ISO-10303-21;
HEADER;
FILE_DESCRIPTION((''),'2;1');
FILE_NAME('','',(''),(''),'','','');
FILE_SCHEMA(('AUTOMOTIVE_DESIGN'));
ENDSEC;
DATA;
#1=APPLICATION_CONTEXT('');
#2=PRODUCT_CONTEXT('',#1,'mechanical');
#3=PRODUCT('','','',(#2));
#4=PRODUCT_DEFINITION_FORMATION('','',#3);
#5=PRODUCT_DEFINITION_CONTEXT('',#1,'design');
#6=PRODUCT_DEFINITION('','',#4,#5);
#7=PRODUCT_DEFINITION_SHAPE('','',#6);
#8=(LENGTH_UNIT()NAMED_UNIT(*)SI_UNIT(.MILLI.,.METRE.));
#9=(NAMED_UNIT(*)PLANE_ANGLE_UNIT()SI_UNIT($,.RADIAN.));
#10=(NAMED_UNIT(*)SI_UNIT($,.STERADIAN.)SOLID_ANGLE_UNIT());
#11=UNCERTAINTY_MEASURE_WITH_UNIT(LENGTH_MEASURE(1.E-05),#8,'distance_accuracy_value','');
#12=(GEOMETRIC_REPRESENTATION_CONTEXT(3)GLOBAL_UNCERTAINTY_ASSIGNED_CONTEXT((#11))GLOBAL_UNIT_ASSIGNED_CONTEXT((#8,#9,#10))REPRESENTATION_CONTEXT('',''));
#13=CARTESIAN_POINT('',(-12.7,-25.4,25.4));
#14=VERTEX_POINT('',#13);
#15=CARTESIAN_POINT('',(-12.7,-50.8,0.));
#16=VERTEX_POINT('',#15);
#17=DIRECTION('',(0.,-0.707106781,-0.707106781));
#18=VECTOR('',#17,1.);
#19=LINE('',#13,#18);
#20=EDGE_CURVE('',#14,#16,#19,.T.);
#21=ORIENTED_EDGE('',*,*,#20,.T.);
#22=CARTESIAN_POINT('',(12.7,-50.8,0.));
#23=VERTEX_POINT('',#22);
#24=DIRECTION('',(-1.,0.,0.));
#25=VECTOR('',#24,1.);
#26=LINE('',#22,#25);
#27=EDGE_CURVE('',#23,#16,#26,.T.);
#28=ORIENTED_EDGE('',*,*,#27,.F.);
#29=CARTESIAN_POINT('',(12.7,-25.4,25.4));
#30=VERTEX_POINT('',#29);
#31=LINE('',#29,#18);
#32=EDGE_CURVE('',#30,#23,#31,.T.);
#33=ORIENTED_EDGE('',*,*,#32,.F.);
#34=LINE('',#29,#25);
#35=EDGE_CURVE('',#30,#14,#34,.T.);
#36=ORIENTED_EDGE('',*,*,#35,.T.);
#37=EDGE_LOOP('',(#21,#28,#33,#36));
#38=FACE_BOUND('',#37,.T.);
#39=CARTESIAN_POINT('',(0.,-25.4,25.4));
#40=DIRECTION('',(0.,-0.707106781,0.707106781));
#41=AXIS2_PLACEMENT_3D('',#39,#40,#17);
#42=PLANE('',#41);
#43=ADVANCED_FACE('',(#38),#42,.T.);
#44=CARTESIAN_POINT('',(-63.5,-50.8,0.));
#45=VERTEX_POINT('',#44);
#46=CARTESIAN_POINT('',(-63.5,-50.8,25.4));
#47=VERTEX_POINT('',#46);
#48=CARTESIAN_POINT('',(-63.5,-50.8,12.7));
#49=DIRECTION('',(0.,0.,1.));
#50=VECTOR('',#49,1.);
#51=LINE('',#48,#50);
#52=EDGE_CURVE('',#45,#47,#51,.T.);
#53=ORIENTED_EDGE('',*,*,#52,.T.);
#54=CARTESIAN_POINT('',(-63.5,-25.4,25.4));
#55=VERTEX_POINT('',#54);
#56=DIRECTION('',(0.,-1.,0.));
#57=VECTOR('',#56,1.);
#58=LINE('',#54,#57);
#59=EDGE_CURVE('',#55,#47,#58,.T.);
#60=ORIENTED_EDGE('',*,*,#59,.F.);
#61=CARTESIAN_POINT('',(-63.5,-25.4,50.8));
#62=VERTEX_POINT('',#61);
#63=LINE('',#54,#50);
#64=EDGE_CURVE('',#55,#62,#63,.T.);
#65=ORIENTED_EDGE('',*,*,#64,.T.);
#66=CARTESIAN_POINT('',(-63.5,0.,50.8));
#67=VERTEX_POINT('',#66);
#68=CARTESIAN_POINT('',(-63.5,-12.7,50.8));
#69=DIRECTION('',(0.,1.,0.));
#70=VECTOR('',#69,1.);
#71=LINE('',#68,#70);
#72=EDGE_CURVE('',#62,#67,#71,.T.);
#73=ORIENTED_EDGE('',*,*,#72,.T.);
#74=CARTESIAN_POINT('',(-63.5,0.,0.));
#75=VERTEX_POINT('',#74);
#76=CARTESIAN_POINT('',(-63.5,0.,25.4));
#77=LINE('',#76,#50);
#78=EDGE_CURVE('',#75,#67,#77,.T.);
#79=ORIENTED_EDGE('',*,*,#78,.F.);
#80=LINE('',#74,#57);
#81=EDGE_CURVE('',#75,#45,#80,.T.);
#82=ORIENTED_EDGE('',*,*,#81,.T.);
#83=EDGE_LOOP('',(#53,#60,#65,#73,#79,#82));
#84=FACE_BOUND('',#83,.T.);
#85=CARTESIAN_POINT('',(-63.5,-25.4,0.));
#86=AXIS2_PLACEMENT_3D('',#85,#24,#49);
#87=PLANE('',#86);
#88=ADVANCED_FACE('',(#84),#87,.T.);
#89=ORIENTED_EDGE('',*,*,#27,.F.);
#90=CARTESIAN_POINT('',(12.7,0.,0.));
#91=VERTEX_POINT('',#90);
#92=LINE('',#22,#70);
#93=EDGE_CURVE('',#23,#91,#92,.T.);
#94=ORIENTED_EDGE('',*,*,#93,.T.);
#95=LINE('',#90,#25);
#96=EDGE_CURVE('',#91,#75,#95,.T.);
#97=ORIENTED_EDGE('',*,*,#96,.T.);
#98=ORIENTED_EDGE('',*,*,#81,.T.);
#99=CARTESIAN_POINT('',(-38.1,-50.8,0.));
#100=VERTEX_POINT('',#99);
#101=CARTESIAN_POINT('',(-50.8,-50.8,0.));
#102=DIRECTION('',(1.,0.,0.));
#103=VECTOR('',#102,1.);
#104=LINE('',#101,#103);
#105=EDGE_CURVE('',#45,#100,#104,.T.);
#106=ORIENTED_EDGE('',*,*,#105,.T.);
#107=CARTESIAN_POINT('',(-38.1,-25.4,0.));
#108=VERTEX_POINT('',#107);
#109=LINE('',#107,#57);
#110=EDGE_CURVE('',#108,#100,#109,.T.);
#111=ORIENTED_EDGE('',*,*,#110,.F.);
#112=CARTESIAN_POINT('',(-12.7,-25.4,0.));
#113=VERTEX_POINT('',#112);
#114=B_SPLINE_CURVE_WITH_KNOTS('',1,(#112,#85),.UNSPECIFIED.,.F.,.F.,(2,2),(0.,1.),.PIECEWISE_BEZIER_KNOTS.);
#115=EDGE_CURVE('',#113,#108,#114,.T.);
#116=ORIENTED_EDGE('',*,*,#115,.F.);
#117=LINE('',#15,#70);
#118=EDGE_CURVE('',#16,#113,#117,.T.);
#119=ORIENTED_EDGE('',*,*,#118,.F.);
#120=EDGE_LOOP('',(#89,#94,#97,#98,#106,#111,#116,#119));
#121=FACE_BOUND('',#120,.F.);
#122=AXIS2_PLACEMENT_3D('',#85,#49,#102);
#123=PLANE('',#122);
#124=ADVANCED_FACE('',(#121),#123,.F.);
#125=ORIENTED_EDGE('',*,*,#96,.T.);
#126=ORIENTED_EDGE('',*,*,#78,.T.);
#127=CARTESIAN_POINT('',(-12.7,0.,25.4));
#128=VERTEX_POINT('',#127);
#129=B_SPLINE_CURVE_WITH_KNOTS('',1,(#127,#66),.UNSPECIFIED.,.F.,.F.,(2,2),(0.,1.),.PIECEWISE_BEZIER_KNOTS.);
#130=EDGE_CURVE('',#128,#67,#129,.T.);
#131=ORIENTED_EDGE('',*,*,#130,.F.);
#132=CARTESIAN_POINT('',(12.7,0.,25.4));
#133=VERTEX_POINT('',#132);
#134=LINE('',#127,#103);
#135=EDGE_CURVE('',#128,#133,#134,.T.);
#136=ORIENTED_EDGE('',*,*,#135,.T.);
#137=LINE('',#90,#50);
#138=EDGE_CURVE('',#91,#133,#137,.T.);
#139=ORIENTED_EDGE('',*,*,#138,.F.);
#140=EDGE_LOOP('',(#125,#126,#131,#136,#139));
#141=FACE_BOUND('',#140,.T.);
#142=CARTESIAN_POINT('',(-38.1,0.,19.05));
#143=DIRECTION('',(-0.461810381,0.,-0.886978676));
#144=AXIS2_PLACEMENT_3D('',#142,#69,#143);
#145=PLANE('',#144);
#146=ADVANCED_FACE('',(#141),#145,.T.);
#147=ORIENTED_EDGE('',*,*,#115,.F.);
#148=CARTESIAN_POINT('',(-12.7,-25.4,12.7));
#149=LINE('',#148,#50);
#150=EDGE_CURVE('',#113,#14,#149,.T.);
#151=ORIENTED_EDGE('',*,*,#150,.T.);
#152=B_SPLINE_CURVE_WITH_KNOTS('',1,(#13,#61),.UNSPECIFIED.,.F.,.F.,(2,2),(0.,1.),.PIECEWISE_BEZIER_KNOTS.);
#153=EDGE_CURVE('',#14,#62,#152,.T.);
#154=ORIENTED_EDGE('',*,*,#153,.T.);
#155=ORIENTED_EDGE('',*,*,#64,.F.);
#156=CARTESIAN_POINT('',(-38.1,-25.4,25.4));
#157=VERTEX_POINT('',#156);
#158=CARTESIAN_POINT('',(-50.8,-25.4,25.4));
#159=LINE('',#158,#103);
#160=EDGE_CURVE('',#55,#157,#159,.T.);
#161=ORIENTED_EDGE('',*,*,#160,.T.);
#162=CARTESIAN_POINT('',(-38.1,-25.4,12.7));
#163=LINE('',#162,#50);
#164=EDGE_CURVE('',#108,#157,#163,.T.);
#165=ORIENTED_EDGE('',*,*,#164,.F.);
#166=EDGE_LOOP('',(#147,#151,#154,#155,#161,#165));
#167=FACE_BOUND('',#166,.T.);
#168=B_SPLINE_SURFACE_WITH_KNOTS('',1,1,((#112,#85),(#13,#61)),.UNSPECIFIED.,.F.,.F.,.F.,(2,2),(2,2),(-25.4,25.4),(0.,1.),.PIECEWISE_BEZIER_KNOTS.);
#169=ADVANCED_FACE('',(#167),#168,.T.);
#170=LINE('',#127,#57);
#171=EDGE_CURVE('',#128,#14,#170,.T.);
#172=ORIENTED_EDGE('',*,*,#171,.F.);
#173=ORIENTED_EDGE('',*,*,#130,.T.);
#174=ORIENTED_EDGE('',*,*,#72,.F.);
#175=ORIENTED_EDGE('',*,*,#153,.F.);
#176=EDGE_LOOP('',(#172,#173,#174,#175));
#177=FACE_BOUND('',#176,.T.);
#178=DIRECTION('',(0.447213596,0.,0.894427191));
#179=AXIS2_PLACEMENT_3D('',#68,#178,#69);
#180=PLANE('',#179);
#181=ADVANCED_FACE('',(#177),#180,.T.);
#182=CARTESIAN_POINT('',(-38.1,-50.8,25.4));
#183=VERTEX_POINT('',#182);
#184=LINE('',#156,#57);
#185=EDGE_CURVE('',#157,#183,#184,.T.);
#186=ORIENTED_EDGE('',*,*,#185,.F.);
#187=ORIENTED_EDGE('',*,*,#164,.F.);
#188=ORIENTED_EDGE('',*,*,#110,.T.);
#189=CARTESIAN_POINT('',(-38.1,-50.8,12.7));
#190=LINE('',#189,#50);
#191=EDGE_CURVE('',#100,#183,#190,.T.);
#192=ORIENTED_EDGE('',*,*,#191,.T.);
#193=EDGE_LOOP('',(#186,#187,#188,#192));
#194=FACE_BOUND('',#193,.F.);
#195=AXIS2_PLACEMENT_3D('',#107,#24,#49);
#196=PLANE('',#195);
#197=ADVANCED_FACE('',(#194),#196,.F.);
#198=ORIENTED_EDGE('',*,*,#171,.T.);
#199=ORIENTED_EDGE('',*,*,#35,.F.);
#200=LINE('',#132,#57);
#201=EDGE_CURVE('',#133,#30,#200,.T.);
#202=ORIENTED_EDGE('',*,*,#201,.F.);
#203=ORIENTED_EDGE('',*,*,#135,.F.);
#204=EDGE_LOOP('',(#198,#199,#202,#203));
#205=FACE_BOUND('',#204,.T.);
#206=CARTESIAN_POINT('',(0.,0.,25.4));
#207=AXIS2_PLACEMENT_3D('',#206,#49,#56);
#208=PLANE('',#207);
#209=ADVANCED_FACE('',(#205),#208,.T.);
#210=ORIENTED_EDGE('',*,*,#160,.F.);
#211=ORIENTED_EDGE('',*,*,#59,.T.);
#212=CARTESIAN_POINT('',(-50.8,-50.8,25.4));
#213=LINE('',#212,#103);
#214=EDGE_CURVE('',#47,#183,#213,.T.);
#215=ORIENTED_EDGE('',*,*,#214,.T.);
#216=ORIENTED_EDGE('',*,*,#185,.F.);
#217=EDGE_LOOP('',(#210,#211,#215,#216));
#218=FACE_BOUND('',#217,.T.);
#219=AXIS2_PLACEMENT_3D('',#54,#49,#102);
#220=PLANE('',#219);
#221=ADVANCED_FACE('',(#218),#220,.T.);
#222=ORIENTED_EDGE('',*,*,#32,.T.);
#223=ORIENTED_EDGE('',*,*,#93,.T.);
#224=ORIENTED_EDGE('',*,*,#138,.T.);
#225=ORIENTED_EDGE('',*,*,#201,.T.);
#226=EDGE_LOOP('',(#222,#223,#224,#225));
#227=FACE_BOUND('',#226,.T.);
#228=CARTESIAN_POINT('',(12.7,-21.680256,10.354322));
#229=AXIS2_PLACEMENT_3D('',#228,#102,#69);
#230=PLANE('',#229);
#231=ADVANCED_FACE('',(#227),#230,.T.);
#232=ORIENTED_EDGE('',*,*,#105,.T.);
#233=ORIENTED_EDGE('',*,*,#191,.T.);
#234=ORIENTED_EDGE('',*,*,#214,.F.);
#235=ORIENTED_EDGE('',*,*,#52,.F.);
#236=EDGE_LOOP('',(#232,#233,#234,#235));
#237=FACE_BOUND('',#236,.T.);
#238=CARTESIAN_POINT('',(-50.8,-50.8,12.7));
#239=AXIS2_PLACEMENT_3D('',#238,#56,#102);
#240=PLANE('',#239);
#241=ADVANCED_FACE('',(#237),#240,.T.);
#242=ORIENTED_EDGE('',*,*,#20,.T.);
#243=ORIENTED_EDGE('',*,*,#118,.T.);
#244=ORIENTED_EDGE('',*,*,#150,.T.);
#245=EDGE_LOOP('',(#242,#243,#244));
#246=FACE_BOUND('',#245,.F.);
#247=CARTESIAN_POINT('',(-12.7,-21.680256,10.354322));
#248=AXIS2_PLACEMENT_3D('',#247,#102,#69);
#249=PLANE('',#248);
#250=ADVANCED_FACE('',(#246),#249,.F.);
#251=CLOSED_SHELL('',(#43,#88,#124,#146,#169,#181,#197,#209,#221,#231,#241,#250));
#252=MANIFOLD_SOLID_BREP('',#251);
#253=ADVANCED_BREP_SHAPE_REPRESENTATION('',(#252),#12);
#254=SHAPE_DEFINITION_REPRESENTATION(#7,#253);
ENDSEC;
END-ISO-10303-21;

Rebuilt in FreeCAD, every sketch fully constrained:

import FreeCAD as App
import Part
import Sketcher
Q = App.Units.Quantity


def add_polygon(sketch, points):
    """Adds a closed chain of lines whose ends are joined by coincident constraints."""
    first, n = sketch.GeometryCount, len(points)
    for a, b in zip(points, points[1:] + points[:1]):
        sketch.addGeometry(Part.LineSegment(App.Vector(*a, 0), App.Vector(*b, 0)), False)
    for i in range(n):
        sketch.addConstraint(Sketcher.Constraint("Coincident", first + i, 2, first + (i + 1) % n, 1))

doc = App.newDocument("Part")
params = doc.addObject("Spreadsheet::Sheet", "Params")
for row, (alias, value) in enumerate([
    ("sketch1_width", "2 in"),
    ("sketch1_width2", "1 in"),
    ("pad1_length", "1 in"),
    ("sketch2_width", "1 in"),
    ("sketch3_width", "1 in"),
    ("sketch3_height", "2 in"),
    ("sketch4_width", "1 in"),
    ("pad2_length", "1 in"),
], start=1):
    params.set(f"A{row}", alias)
    params.set(f"B{row}", "=" + value)
    params.setAlias(f"B{row}", alias)

body = doc.addObject("PartDesign::Body", "Body")

# Sketch on YZ plane
sketch1 = body.newObject("Sketcher::SketchObject", "Sketch")
sketch1.AttachmentSupport = (doc.getObject("YZ_Plane"), [""])
sketch1.MapMode = "FlatFace"
add_polygon(sketch1, [(-51, 0), (0, 0), (0, 25), (-25, 25)])  # lines 0-3
sketch1.addConstraint(Sketcher.Constraint("Horizontal", 0))
sketch1.addConstraint(Sketcher.Constraint("Vertical", 1))
sketch1.addConstraint(Sketcher.Constraint("Horizontal", 2))
sketch1.addConstraint(Sketcher.Constraint("Coincident", 0, 2, -1, 1))
sketch1.addConstraint(Sketcher.Constraint("Equal", 2, 1))
sketch1.addConstraint(Sketcher.Constraint("DistanceX", 0, 1, 0, 2, Q("2 in")))
sketch1.addConstraint(Sketcher.Constraint("DistanceX", 2, 2, 2, 1, Q("1 in")))
sketch1.setExpression("Constraints[9]", "Params.sketch1_width")
sketch1.setExpression("Constraints[10]", "Params.sketch1_width2")
pad1 = body.newObject("PartDesign::Pad", "Pad")
pad1.Profile = sketch1
pad1.setExpression("Length", "Params.pad1_length")
pad1.Midplane = True

# Sketch on YZ plane
sketch2 = body.newObject("Sketcher::SketchObject", "Sketch001")
sketch2.AttachmentSupport = (doc.getObject("YZ_Plane"), [""])
sketch2.MapMode = "FlatFace"
sketch2.AttachmentOffset = App.Placement(App.Vector(0, 0, -0.5 * 25.4), App.Rotation())
add_polygon(sketch2, [(0, 25), (0, 0), (-25, 0), (-25, 25)])  # lines 0-3
sketch2.addConstraint(Sketcher.Constraint("Vertical", 0))
sketch2.addConstraint(Sketcher.Constraint("Horizontal", 1))
sketch2.addConstraint(Sketcher.Constraint("Vertical", 2))
sketch2.addConstraint(Sketcher.Constraint("Horizontal", 3))
sketch2.addConstraint(Sketcher.Constraint("Coincident", 0, 2, -1, 1))
sketch2.addConstraint(Sketcher.Constraint("Equal", 3, 0))
sketch2.addConstraint(Sketcher.Constraint("DistanceX", 1, 2, 1, 1, Q("1 in")))
sketch2.setExpression("Constraints[10]", "Params.sketch2_width")

# Sketch on YZ plane
sketch3 = body.newObject("Sketcher::SketchObject", "Sketch002")
sketch3.AttachmentSupport = (doc.getObject("YZ_Plane"), [""])
sketch3.MapMode = "FlatFace"
sketch3.AttachmentOffset = App.Placement(App.Vector(0, 0, -2.5 * 25.4), App.Rotation())
add_polygon(sketch3, [(-25, 51), (-25, 0), (0, 0), (0, 51)])  # lines 0-3
sketch3.addConstraint(Sketcher.Constraint("Vertical", 0))
sketch3.addConstraint(Sketcher.Constraint("Horizontal", 1))
sketch3.addConstraint(Sketcher.Constraint("Vertical", 2))
sketch3.addConstraint(Sketcher.Constraint("Horizontal", 3))
sketch3.addConstraint(Sketcher.Constraint("Coincident", 1, 2, -1, 1))
sketch3.addConstraint(Sketcher.Constraint("DistanceX", 1, 1, 1, 2, Q("1 in")))
sketch3.addConstraint(Sketcher.Constraint("DistanceY", 0, 2, 0, 1, Q("2 in")))
sketch3.setExpression("Constraints[9]", "Params.sketch3_width")
sketch3.setExpression("Constraints[10]", "Params.sketch3_height")

additiveloft = body.newObject("PartDesign::AdditiveLoft", "AdditiveLoft")
additiveloft.Profile = sketch2
additiveloft.Sections = [sketch3]

# Sketch on XZ plane
sketch4 = body.newObject("Sketcher::SketchObject", "Sketch003")
sketch4.AttachmentSupport = (doc.getObject("XZ_Plane"), [""])
sketch4.MapMode = "FlatFace"
sketch4.AttachmentOffset = App.Placement(App.Vector(0, 0, 1 * 25.4), App.Rotation())
add_polygon(sketch4, [(-64, 25), (-64, 0), (-38, 0), (-38, 25)])  # lines 0-3
sketch4.addConstraint(Sketcher.Constraint("Vertical", 0))
sketch4.addConstraint(Sketcher.Constraint("Horizontal", 1))
sketch4.addConstraint(Sketcher.Constraint("Vertical", 2))
sketch4.addConstraint(Sketcher.Constraint("Horizontal", 3))
sketch4.addConstraint(Sketcher.Constraint("PointOnObject", 0, 2, -1))
sketch4.addConstraint(Sketcher.Constraint("Equal", 3, 0))
sketch4.addConstraint(Sketcher.Constraint("DistanceX", 1, 1, 1, 2, Q("1 in")))
sketch4.addConstraint(Sketcher.Constraint("DistanceX", 0, 2, -1, 1, Q("2.5 in")))
sketch4.setExpression("Constraints[10]", "Params.sketch4_width")
pad2 = body.newObject("PartDesign::Pad", "Pad001")
pad2.Profile = sketch4
pad2.setExpression("Length", "Params.pad2_length")

doc.recompute()
